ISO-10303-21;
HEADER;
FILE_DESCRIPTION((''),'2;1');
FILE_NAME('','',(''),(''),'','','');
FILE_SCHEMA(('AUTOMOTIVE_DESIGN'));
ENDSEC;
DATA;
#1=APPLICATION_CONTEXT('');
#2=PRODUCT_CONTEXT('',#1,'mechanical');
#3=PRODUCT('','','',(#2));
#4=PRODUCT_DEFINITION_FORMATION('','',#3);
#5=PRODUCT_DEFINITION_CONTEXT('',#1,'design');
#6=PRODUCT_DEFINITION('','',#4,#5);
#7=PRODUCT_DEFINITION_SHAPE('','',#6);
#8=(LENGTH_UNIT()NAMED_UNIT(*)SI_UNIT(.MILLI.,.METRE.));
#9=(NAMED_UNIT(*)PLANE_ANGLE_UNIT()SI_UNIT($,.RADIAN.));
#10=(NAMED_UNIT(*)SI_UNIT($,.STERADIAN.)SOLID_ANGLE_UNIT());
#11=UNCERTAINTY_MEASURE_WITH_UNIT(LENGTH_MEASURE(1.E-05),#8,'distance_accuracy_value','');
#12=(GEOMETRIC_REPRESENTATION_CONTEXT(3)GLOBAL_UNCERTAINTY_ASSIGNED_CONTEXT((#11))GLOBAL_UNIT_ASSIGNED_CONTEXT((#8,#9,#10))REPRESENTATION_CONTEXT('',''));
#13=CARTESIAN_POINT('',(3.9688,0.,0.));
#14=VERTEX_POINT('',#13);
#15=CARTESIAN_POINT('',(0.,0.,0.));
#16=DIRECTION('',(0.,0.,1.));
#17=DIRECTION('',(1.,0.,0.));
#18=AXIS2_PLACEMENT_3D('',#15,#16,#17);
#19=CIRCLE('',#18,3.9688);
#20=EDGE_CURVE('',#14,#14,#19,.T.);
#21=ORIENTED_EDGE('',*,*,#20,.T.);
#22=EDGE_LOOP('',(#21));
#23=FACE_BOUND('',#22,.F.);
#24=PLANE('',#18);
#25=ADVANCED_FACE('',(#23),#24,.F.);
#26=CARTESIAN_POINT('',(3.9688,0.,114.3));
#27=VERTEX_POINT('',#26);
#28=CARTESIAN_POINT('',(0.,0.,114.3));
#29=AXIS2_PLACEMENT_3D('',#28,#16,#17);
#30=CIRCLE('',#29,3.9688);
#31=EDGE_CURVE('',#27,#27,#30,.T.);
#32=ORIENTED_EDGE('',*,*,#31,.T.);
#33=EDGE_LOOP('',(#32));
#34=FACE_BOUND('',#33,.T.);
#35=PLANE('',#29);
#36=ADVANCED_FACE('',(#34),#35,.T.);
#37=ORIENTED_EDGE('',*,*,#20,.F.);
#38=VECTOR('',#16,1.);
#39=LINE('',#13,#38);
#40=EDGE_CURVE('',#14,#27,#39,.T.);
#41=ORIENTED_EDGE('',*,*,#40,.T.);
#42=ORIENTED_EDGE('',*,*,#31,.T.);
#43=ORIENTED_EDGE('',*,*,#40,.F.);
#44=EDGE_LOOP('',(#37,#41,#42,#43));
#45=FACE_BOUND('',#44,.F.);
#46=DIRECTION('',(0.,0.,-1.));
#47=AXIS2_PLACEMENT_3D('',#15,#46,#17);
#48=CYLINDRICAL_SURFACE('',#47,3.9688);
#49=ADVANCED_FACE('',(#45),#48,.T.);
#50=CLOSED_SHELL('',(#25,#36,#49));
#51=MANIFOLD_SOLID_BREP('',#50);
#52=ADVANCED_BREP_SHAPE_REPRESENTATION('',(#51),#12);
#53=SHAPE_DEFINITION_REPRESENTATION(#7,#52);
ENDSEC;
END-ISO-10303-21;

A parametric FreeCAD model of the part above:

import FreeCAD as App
import Part
import Sketcher
from FreeCAD import Vector
Q = App.Units.Quantity

doc = App.newDocument("Part")
body = doc.addObject("PartDesign::Body", "Body")

# Sketch on XY plane
sketch1 = body.newObject("Sketcher::SketchObject", "Sketch")
sketch1.AttachmentSupport = (doc.getObject("XY_Plane"), [""])
sketch1.MapMode = "FlatFace"
sketch1.addGeometry(Part.Circle(Vector(0, 0, 0), Vector(0, 0, 1), 4), False)
sketch1.addConstraint(Sketcher.Constraint("Coincident", 0, 3, -1, 1))
sketch1.addConstraint(Sketcher.Constraint("Diameter", 0, Q("0.3125 in")))
pad1 = body.newObject("PartDesign::Pad", "Pad")
pad1.Profile = sketch1
pad1.Length = Q("4.5 in")

doc.recompute()
